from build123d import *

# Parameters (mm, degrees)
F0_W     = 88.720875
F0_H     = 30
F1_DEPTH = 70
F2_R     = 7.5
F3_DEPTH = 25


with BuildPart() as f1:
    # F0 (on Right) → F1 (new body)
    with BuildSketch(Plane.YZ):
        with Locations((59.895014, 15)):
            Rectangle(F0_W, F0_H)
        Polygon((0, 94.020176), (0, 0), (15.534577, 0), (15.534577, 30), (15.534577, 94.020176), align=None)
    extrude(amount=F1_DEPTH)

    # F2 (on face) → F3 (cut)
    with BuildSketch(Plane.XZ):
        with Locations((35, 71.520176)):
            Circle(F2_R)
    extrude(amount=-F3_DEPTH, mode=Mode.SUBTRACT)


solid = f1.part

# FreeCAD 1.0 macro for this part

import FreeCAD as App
import Part
import Sketcher

V = App.Vector
Q = App.Units.Quantity


def add_polygon(sketch, points):
    """Adds a closed chain of lines whose ends are joined by coincident constraints."""
    first, n = sketch.GeometryCount, len(points)
    for a, b in zip(points, points[1:] + points[:1]):
        sketch.addGeometry(Part.LineSegment(App.Vector(*a, 0), App.Vector(*b, 0)), False)
    for i in range(n):
        sketch.addConstraint(Sketcher.Constraint("Coincident", first + i, 2, first + (i + 1) % n, 1))

doc = App.newDocument("Part")
body = doc.addObject("PartDesign::Body", "Body")

# Sketch on YZ plane
sketch1 = doc.addObject("Sketcher::SketchObject", "Sketch")
body.addObject(sketch1)
sketch1.AttachmentSupport = (doc.YZ_Plane, [""])
sketch1.MapMode = "FlatFace"
add_polygon(sketch1, [(104, 0), (104, 30), (16, 30), (16, 94), (0, 94), (0, 0)])  # lines 0-5
sketch1.addConstraint([
    Sketcher.Constraint("Vertical", 0),
    Sketcher.Constraint("Horizontal", 1),
    Sketcher.Constraint("Vertical", 2),
    Sketcher.Constraint("Horizontal", 3),
    Sketcher.Constraint("Vertical", 4),
    Sketcher.Constraint("Horizontal", 5),
    Sketcher.Constraint("Coincident", 4, 2, -1, 1),
    Sketcher.Constraint("DistanceY", 0, 1, 0, 2, Q("30 mm")),
    Sketcher.Constraint("DistanceX", 5, 1, 5, 2, Q("104.255452 mm")),
    Sketcher.Constraint("DistanceX", 1, 2, 1, 1, Q("88.720875 mm")),
    Sketcher.Constraint("DistanceY", 2, 1, 2, 2, Q("64.020176 mm")),
])
pad1 = doc.addObject("PartDesign::Pad", "Pad")
body.addObject(pad1)
pad1.Profile = sketch1
pad1.Length = 70

# Sketch on XZ plane
sketch2 = doc.addObject("Sketcher::SketchObject", "Sketch001")
body.addObject(sketch2)
sketch2.AttachmentSupport = (doc.XZ_Plane, [""])
sketch2.MapMode = "FlatFace"
sketch2.addGeometry(Part.Circle(V(35, 72, 0), V(0, 0, 1), 8), False)
sketch2.addConstraint([
    Sketcher.Constraint("Diameter", 0, Q("15 mm")),
    Sketcher.Constraint("DistanceX", -1, 1, 0, 3, Q("35 mm")),
    Sketcher.Constraint("DistanceY", -1, 1, 0, 3, Q("71.520176 mm")),
])
pocket1 = doc.addObject("PartDesign::Pocket", "Pocket")
body.addObject(pocket1)
pocket1.Profile = sketch2
pocket1.Length = 25

doc.recompute()
